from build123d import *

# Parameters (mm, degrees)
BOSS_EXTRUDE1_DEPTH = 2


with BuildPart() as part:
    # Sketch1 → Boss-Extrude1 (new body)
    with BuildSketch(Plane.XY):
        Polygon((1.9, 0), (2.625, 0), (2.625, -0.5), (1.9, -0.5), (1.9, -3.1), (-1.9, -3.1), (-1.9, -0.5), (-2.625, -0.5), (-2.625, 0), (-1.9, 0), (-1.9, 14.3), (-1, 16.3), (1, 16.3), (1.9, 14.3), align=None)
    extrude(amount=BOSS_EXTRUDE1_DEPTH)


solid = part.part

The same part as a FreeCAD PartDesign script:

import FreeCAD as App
import Part
import Sketcher
Q = App.Units.Quantity

doc = App.newDocument("Part")
body = doc.addObject("PartDesign::Body", "Body")

sketch1 = doc.addObject("Sketcher::SketchObject", "Sketch")
body.addObject(sketch1)
sketch1.AttachmentSupport = (doc.XY_Plane, [""])
sketch1.MapMode = "FlatFace"
sketch1.addGeometry([
    Part.LineSegment(App.Vector(2.625, 0, 0), App.Vector(1.9, 0, 0)),
    Part.LineSegment(App.Vector(1.9, 0, 0), App.Vector(1.9, 14.3, 0)),
    Part.LineSegment(App.Vector(1.9, 14.3, 0), App.Vector(1, 16.3, 0)),
    Part.LineSegment(App.Vector(1, 16.3, 0), App.Vector(-1, 16.3, 0)),
    Part.LineSegment(App.Vector(-1, 16.3, 0), App.Vector(-1.9, 14.3, 0)),
    Part.LineSegment(App.Vector(-1.9, 14.3, 0), App.Vector(-1.9, 0, 0)),
    Part.LineSegment(App.Vector(-1.9, 0, 0), App.Vector(-2.625, 0, 0)),
    Part.LineSegment(App.Vector(-2.625, 0, 0), App.Vector(-2.625, -0.5, 0)),
    Part.LineSegment(App.Vector(-2.625, -0.5, 0), App.Vector(-1.9, -0.5, 0)),
    Part.LineSegment(App.Vector(-1.9, -0.5, 0), App.Vector(-1.9, -3.1, 0)),
    Part.LineSegment(App.Vector(-1.9, -3.1, 0), App.Vector(1.9, -3.1, 0)),
    Part.LineSegment(App.Vector(1.9, -3.1, 0), App.Vector(1.9, -0.5, 0)),
    Part.LineSegment(App.Vector(1.9, -0.5, 0), App.Vector(2.625, -0.5, 0)),
    Part.LineSegment(App.Vector(2.625, -0.5, 0), App.Vector(2.625, 0, 0)),
], False)
sketch1.addConstraint([
    Sketcher.Constraint("Coincident", 0, 2, 1, 1),
    Sketcher.Constraint("Coincident", 1, 2, 2, 1),
    Sketcher.Constraint("Coincident", 2, 2, 3, 1),
    Sketcher.Constraint("Coincident", 3, 2, 4, 1),
    Sketcher.Constraint("Coincident", 4, 2, 5, 1),
    Sketcher.Constraint("Coincident", 5, 2, 6, 1),
    Sketcher.Constraint("Coincident", 6, 2, 7, 1),
    Sketcher.Constraint("Coincident", 7, 2, 8, 1),
    Sketcher.Constraint("Coincident", 8, 2, 9, 1),
    Sketcher.Constraint("Coincident", 9, 2, 10, 1),
    Sketcher.Constraint("Coincident", 10, 2, 11, 1),
    Sketcher.Constraint("Coincident", 11, 2, 12, 1),
    Sketcher.Constraint("Coincident", 12, 2, 13, 1),
    Sketcher.Constraint("Coincident", 13, 2, 0, 1),
    Sketcher.Constraint("Horizontal", 0),
    Sketcher.Constraint("Vertical", 1),
    Sketcher.Constraint("Horizontal", 3),
    Sketcher.Constraint("Vertical", 5),
    Sketcher.Constraint("Horizontal", 6),
    Sketcher.Constraint("Vertical", 7),
    Sketcher.Constraint("Horizontal", 8),
    Sketcher.Constraint("Vertical", 9),
    Sketcher.Constraint("Horizontal", 10),
    Sketcher.Constraint("Vertical", 11),
    Sketcher.Constraint("Horizontal", 12),
    Sketcher.Constraint("Vertical", 13),
    Sketcher.Constraint("Symmetric", 0, 2, 5, 2, -1, 1),
    Sketcher.Constraint("Symmetric", 8, 2, 11, 2, -2),
    Sketcher.Constraint("Symmetric", 6, 2, 13, 2, -2),
    Sketcher.Constraint("Horizontal", 1, 2, 4, 2),
    Sketcher.Constraint("Vertical", 5, 2, 8, 2),
    Sketcher.Constraint("Equal", 2, 4),
    Sketcher.Constraint("DistanceX", 3, 2, 3, 1, Q("2 mm")),
    Sketcher.Constraint("DistanceX", 10, 1, 10, 2, Q("3.8 mm")),
    Sketcher.Constraint("DistanceY", 1, 1, 1, 2, Q("14.3 mm")),
    Sketcher.Constraint("DistanceY", 7, 2, 7, 1, Q("0.5 mm")),
    Sketcher.Constraint("DistanceY", 9, 2, 9, 1, Q("2.6 mm")),
    Sketcher.Constraint("DistanceY", 1, 2, 2, 2, Q("2 mm")),
    Sketcher.Constraint("DistanceX", 0, 2, 0, 1, Q("0.725 mm")),
])
pad1 = doc.addObject("PartDesign::Pad", "Pad")
body.addObject(pad1)
pad1.Profile = sketch1
pad1.Length = 2

doc.recompute()
